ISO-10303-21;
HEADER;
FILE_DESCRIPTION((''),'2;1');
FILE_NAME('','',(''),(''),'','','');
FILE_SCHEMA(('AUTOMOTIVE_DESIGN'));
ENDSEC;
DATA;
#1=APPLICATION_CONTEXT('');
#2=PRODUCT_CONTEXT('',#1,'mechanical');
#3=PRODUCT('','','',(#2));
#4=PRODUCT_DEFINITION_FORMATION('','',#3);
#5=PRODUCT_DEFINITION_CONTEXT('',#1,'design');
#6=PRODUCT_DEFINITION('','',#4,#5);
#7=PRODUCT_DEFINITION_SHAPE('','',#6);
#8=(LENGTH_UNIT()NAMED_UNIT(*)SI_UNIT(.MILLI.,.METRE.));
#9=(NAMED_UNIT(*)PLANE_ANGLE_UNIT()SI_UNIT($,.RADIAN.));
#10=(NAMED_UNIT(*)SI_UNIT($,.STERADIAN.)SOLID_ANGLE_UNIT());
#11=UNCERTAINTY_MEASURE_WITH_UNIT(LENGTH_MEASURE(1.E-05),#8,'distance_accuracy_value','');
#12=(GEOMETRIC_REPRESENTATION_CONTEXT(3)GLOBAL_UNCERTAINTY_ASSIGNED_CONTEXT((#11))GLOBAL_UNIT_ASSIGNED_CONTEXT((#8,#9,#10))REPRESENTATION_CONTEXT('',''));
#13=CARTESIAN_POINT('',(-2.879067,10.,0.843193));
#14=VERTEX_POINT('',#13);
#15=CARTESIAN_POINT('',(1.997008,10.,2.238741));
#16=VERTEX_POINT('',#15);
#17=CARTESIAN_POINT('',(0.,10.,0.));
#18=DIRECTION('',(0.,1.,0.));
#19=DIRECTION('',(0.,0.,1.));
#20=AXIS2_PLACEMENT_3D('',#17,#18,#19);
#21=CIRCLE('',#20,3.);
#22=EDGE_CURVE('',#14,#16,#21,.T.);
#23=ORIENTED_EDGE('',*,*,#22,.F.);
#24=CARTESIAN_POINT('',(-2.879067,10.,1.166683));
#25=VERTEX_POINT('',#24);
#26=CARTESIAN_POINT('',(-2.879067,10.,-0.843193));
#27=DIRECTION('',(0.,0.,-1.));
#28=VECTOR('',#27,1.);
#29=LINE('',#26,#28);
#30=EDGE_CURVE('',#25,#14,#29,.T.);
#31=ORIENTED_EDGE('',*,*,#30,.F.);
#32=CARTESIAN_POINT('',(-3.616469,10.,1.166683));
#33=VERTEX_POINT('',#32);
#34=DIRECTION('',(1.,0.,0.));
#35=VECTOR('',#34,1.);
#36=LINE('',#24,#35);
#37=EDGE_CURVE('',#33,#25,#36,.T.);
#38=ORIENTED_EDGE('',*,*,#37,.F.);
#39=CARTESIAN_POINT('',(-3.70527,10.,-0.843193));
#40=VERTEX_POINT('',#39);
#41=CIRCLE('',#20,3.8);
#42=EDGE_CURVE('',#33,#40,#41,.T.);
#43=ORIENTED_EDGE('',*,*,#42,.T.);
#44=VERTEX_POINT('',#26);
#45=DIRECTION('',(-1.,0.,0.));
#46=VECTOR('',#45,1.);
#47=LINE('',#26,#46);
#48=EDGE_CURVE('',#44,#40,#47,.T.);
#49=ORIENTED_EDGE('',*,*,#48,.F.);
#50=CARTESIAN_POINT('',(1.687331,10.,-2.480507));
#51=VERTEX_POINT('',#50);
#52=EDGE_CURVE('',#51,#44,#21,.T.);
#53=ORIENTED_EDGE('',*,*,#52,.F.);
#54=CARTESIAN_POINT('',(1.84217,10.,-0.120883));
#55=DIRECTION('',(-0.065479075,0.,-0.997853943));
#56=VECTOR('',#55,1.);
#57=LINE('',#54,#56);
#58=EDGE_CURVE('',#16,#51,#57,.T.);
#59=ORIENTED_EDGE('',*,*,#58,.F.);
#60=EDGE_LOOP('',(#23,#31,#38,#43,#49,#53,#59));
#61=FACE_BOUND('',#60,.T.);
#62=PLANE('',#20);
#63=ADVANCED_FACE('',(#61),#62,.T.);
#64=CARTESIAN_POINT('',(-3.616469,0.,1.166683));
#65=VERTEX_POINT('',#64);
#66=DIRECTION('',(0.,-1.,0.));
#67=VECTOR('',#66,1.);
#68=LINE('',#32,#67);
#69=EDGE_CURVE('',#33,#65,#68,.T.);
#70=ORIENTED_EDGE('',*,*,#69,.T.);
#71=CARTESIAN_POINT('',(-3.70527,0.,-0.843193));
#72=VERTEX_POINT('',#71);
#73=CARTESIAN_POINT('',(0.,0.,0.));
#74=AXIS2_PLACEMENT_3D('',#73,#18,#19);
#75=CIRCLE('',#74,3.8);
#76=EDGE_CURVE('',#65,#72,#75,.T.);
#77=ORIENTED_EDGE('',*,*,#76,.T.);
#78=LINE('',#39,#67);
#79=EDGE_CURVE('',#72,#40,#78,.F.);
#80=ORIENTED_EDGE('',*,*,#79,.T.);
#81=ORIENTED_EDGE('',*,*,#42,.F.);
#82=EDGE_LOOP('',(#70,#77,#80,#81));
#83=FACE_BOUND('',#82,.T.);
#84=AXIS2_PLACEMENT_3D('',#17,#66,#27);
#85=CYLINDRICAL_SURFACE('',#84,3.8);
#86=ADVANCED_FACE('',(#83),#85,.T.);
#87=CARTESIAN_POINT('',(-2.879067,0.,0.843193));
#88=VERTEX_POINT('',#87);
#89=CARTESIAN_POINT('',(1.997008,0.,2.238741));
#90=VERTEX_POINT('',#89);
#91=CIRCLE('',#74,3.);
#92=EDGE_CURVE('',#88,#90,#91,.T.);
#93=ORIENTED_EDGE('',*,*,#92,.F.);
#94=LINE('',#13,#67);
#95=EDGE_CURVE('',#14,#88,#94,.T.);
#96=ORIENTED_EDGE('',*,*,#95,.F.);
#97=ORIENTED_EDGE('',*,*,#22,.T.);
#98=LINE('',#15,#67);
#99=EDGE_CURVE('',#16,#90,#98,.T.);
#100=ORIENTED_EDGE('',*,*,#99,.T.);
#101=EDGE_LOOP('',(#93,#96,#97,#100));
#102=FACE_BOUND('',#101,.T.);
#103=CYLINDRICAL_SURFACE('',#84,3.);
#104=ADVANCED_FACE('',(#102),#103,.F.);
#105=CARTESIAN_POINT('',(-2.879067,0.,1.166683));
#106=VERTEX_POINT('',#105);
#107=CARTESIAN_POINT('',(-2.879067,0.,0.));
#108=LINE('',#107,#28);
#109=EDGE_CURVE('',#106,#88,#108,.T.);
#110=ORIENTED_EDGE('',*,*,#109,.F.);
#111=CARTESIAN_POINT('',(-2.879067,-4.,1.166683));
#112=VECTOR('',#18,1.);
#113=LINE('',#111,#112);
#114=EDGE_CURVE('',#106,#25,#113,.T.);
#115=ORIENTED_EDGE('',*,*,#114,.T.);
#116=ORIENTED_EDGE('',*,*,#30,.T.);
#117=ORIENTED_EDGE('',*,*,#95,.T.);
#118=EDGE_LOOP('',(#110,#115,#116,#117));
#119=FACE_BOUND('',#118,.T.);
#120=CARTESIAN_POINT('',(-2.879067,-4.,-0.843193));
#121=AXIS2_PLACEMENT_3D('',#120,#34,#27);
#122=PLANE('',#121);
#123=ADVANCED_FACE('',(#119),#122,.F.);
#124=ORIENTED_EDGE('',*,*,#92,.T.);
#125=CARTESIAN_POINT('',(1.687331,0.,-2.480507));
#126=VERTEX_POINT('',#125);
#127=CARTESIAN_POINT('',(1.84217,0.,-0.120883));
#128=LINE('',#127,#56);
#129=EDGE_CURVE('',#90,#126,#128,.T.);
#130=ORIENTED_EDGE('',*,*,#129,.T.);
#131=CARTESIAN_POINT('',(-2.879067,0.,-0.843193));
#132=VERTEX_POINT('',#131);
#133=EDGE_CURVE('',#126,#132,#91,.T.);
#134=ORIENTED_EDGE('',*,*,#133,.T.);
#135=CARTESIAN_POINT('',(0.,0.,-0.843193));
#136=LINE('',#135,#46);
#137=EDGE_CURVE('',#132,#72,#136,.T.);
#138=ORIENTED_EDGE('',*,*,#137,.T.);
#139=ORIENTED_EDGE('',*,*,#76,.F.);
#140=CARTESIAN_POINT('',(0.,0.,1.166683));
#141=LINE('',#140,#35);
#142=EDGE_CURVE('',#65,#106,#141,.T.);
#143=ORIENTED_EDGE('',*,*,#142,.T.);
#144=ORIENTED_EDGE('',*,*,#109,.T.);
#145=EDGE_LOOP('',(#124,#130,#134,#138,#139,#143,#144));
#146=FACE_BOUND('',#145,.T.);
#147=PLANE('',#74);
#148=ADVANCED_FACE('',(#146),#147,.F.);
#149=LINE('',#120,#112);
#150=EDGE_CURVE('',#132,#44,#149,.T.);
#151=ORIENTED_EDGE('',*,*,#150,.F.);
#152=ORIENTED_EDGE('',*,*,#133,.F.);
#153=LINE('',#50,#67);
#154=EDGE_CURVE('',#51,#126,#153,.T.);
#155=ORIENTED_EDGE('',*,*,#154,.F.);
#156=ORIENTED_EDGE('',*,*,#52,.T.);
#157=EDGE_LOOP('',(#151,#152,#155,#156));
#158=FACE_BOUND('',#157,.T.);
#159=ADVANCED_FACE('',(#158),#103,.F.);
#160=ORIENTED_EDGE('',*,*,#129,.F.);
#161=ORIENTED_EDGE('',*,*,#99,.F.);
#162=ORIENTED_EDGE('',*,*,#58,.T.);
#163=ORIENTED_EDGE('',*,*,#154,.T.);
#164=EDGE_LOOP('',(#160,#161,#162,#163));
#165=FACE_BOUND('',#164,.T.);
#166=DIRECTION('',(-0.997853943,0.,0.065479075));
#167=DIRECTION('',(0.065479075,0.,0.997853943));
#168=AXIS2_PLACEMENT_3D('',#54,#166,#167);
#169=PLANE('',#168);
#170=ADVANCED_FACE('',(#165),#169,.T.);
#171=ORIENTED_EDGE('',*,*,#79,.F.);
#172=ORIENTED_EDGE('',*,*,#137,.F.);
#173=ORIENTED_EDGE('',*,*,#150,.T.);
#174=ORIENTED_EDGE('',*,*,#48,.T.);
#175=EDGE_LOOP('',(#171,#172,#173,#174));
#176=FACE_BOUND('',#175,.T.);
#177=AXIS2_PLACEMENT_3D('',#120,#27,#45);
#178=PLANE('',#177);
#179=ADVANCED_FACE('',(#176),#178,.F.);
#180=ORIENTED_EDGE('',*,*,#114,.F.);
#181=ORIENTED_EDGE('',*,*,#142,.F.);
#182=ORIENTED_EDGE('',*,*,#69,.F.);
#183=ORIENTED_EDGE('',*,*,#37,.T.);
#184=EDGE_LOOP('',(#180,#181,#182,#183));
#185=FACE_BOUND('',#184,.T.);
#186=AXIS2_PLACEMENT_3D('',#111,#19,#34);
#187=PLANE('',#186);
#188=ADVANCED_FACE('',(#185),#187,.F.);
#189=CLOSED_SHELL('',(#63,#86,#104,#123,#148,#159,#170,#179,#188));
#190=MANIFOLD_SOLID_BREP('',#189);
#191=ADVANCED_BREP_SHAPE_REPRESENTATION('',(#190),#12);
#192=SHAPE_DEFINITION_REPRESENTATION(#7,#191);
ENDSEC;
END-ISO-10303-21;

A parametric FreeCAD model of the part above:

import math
import FreeCAD as App
import Part
import Sketcher


def add_polygon(sketch, points):
    """Adds a closed chain of lines whose ends are joined by coincident constraints."""
    first, n = sketch.GeometryCount, len(points)
    for a, b in zip(points, points[1:] + points[:1]):
        sketch.addGeometry(Part.LineSegment(App.Vector(*a, 0), App.Vector(*b, 0)), False)
    for i in range(n):
        sketch.addConstraint(Sketcher.Constraint("Coincident", first + i, 2, first + (i + 1) % n, 1))

doc = App.newDocument("Part")
body = doc.addObject("PartDesign::Body", "Body")

sketch1 = body.newObject("Sketcher::SketchObject", "Sketch")
sketch1.AttachmentSupport = (doc.getObject("XZ_Plane"), [""])
sketch1.MapMode = "FlatFace"
sketch1.addGeometry(Part.Circle(App.Vector(0, 0, 0), App.Vector(0, 0, 1), 3.8), False)
sketch1.addGeometry(Part.ArcOfCircle(Part.Circle(App.Vector(0, 0, 0), App.Vector(0, 0, 1), 3), math.radians(48), math.radians(304)), False)
sketch1.addGeometry(Part.LineSegment(App.Vector(1.7, -2.5, 0), App.Vector(2, 2.2, 0)), False)
sketch1.addConstraint(Sketcher.Constraint("Coincident", 1, 1, 2, 2))
sketch1.addConstraint(Sketcher.Constraint("Coincident", 2, 1, 1, 2))
sketch1.addConstraint(Sketcher.Constraint("Coincident", 0, 3, -1, 1))
sketch1.addConstraint(Sketcher.Constraint("Coincident", 1, 3, -1, 1))
sketch1.addConstraint(Sketcher.Constraint("Radius", 1, 3.0))
sketch1.addConstraint(Sketcher.Constraint("Diameter", 0, 7.6))
sketch1.addConstraint(Sketcher.Constraint("DistanceY", -1, 1, 1, 1, 2.238741))
sketch1.addConstraint(Sketcher.Constraint("DistanceX", -1, 1, 2, 1, 1.687331))
pad1 = body.newObject("PartDesign::Pad", "Pad")
pad1.Profile = sketch1
pad1.Length = 10
pad1.Reversed = True

sketch2 = body.newObject("Sketcher::SketchObject", "Sketch001")
sketch2.AttachmentSupport = (doc.getObject("XZ_Plane"), [""])
sketch2.MapMode = "FlatFace"
sketch2.AttachmentOffset = App.Placement(App.Vector(0, 0, -10), App.Rotation())
add_polygon(sketch2, [(-4.1, -0.8), (-4.1, 1.2), (-2.9, 1.2), (-2.9, -0.8)])
sketch2.addConstraint(Sketcher.Constraint("Vertical", 0))
sketch2.addConstraint(Sketcher.Constraint("Horizontal", 1))
sketch2.addConstraint(Sketcher.Constraint("Vertical", 2))
sketch2.addConstraint(Sketcher.Constraint("Horizontal", 3))
sketch2.addConstraint(Sketcher.Constraint("DistanceX", 1, 1, 1, 2, 1.246955))
sketch2.addConstraint(Sketcher.Constraint("DistanceY", 0, 1, 0, 2, 2.009876))
sketch2.addConstraint(Sketcher.Constraint("DistanceX", 0, 2, -1, 1, 4.126022))
sketch2.addConstraint(Sketcher.Constraint("DistanceY", -1, 1, 0, 2, 1.166683))
pocket1 = body.newObject("PartDesign::Pocket", "Pocket")
pocket1.Profile = sketch2
pocket1.Length = 14
pocket1.Reversed = True

doc.recompute()
